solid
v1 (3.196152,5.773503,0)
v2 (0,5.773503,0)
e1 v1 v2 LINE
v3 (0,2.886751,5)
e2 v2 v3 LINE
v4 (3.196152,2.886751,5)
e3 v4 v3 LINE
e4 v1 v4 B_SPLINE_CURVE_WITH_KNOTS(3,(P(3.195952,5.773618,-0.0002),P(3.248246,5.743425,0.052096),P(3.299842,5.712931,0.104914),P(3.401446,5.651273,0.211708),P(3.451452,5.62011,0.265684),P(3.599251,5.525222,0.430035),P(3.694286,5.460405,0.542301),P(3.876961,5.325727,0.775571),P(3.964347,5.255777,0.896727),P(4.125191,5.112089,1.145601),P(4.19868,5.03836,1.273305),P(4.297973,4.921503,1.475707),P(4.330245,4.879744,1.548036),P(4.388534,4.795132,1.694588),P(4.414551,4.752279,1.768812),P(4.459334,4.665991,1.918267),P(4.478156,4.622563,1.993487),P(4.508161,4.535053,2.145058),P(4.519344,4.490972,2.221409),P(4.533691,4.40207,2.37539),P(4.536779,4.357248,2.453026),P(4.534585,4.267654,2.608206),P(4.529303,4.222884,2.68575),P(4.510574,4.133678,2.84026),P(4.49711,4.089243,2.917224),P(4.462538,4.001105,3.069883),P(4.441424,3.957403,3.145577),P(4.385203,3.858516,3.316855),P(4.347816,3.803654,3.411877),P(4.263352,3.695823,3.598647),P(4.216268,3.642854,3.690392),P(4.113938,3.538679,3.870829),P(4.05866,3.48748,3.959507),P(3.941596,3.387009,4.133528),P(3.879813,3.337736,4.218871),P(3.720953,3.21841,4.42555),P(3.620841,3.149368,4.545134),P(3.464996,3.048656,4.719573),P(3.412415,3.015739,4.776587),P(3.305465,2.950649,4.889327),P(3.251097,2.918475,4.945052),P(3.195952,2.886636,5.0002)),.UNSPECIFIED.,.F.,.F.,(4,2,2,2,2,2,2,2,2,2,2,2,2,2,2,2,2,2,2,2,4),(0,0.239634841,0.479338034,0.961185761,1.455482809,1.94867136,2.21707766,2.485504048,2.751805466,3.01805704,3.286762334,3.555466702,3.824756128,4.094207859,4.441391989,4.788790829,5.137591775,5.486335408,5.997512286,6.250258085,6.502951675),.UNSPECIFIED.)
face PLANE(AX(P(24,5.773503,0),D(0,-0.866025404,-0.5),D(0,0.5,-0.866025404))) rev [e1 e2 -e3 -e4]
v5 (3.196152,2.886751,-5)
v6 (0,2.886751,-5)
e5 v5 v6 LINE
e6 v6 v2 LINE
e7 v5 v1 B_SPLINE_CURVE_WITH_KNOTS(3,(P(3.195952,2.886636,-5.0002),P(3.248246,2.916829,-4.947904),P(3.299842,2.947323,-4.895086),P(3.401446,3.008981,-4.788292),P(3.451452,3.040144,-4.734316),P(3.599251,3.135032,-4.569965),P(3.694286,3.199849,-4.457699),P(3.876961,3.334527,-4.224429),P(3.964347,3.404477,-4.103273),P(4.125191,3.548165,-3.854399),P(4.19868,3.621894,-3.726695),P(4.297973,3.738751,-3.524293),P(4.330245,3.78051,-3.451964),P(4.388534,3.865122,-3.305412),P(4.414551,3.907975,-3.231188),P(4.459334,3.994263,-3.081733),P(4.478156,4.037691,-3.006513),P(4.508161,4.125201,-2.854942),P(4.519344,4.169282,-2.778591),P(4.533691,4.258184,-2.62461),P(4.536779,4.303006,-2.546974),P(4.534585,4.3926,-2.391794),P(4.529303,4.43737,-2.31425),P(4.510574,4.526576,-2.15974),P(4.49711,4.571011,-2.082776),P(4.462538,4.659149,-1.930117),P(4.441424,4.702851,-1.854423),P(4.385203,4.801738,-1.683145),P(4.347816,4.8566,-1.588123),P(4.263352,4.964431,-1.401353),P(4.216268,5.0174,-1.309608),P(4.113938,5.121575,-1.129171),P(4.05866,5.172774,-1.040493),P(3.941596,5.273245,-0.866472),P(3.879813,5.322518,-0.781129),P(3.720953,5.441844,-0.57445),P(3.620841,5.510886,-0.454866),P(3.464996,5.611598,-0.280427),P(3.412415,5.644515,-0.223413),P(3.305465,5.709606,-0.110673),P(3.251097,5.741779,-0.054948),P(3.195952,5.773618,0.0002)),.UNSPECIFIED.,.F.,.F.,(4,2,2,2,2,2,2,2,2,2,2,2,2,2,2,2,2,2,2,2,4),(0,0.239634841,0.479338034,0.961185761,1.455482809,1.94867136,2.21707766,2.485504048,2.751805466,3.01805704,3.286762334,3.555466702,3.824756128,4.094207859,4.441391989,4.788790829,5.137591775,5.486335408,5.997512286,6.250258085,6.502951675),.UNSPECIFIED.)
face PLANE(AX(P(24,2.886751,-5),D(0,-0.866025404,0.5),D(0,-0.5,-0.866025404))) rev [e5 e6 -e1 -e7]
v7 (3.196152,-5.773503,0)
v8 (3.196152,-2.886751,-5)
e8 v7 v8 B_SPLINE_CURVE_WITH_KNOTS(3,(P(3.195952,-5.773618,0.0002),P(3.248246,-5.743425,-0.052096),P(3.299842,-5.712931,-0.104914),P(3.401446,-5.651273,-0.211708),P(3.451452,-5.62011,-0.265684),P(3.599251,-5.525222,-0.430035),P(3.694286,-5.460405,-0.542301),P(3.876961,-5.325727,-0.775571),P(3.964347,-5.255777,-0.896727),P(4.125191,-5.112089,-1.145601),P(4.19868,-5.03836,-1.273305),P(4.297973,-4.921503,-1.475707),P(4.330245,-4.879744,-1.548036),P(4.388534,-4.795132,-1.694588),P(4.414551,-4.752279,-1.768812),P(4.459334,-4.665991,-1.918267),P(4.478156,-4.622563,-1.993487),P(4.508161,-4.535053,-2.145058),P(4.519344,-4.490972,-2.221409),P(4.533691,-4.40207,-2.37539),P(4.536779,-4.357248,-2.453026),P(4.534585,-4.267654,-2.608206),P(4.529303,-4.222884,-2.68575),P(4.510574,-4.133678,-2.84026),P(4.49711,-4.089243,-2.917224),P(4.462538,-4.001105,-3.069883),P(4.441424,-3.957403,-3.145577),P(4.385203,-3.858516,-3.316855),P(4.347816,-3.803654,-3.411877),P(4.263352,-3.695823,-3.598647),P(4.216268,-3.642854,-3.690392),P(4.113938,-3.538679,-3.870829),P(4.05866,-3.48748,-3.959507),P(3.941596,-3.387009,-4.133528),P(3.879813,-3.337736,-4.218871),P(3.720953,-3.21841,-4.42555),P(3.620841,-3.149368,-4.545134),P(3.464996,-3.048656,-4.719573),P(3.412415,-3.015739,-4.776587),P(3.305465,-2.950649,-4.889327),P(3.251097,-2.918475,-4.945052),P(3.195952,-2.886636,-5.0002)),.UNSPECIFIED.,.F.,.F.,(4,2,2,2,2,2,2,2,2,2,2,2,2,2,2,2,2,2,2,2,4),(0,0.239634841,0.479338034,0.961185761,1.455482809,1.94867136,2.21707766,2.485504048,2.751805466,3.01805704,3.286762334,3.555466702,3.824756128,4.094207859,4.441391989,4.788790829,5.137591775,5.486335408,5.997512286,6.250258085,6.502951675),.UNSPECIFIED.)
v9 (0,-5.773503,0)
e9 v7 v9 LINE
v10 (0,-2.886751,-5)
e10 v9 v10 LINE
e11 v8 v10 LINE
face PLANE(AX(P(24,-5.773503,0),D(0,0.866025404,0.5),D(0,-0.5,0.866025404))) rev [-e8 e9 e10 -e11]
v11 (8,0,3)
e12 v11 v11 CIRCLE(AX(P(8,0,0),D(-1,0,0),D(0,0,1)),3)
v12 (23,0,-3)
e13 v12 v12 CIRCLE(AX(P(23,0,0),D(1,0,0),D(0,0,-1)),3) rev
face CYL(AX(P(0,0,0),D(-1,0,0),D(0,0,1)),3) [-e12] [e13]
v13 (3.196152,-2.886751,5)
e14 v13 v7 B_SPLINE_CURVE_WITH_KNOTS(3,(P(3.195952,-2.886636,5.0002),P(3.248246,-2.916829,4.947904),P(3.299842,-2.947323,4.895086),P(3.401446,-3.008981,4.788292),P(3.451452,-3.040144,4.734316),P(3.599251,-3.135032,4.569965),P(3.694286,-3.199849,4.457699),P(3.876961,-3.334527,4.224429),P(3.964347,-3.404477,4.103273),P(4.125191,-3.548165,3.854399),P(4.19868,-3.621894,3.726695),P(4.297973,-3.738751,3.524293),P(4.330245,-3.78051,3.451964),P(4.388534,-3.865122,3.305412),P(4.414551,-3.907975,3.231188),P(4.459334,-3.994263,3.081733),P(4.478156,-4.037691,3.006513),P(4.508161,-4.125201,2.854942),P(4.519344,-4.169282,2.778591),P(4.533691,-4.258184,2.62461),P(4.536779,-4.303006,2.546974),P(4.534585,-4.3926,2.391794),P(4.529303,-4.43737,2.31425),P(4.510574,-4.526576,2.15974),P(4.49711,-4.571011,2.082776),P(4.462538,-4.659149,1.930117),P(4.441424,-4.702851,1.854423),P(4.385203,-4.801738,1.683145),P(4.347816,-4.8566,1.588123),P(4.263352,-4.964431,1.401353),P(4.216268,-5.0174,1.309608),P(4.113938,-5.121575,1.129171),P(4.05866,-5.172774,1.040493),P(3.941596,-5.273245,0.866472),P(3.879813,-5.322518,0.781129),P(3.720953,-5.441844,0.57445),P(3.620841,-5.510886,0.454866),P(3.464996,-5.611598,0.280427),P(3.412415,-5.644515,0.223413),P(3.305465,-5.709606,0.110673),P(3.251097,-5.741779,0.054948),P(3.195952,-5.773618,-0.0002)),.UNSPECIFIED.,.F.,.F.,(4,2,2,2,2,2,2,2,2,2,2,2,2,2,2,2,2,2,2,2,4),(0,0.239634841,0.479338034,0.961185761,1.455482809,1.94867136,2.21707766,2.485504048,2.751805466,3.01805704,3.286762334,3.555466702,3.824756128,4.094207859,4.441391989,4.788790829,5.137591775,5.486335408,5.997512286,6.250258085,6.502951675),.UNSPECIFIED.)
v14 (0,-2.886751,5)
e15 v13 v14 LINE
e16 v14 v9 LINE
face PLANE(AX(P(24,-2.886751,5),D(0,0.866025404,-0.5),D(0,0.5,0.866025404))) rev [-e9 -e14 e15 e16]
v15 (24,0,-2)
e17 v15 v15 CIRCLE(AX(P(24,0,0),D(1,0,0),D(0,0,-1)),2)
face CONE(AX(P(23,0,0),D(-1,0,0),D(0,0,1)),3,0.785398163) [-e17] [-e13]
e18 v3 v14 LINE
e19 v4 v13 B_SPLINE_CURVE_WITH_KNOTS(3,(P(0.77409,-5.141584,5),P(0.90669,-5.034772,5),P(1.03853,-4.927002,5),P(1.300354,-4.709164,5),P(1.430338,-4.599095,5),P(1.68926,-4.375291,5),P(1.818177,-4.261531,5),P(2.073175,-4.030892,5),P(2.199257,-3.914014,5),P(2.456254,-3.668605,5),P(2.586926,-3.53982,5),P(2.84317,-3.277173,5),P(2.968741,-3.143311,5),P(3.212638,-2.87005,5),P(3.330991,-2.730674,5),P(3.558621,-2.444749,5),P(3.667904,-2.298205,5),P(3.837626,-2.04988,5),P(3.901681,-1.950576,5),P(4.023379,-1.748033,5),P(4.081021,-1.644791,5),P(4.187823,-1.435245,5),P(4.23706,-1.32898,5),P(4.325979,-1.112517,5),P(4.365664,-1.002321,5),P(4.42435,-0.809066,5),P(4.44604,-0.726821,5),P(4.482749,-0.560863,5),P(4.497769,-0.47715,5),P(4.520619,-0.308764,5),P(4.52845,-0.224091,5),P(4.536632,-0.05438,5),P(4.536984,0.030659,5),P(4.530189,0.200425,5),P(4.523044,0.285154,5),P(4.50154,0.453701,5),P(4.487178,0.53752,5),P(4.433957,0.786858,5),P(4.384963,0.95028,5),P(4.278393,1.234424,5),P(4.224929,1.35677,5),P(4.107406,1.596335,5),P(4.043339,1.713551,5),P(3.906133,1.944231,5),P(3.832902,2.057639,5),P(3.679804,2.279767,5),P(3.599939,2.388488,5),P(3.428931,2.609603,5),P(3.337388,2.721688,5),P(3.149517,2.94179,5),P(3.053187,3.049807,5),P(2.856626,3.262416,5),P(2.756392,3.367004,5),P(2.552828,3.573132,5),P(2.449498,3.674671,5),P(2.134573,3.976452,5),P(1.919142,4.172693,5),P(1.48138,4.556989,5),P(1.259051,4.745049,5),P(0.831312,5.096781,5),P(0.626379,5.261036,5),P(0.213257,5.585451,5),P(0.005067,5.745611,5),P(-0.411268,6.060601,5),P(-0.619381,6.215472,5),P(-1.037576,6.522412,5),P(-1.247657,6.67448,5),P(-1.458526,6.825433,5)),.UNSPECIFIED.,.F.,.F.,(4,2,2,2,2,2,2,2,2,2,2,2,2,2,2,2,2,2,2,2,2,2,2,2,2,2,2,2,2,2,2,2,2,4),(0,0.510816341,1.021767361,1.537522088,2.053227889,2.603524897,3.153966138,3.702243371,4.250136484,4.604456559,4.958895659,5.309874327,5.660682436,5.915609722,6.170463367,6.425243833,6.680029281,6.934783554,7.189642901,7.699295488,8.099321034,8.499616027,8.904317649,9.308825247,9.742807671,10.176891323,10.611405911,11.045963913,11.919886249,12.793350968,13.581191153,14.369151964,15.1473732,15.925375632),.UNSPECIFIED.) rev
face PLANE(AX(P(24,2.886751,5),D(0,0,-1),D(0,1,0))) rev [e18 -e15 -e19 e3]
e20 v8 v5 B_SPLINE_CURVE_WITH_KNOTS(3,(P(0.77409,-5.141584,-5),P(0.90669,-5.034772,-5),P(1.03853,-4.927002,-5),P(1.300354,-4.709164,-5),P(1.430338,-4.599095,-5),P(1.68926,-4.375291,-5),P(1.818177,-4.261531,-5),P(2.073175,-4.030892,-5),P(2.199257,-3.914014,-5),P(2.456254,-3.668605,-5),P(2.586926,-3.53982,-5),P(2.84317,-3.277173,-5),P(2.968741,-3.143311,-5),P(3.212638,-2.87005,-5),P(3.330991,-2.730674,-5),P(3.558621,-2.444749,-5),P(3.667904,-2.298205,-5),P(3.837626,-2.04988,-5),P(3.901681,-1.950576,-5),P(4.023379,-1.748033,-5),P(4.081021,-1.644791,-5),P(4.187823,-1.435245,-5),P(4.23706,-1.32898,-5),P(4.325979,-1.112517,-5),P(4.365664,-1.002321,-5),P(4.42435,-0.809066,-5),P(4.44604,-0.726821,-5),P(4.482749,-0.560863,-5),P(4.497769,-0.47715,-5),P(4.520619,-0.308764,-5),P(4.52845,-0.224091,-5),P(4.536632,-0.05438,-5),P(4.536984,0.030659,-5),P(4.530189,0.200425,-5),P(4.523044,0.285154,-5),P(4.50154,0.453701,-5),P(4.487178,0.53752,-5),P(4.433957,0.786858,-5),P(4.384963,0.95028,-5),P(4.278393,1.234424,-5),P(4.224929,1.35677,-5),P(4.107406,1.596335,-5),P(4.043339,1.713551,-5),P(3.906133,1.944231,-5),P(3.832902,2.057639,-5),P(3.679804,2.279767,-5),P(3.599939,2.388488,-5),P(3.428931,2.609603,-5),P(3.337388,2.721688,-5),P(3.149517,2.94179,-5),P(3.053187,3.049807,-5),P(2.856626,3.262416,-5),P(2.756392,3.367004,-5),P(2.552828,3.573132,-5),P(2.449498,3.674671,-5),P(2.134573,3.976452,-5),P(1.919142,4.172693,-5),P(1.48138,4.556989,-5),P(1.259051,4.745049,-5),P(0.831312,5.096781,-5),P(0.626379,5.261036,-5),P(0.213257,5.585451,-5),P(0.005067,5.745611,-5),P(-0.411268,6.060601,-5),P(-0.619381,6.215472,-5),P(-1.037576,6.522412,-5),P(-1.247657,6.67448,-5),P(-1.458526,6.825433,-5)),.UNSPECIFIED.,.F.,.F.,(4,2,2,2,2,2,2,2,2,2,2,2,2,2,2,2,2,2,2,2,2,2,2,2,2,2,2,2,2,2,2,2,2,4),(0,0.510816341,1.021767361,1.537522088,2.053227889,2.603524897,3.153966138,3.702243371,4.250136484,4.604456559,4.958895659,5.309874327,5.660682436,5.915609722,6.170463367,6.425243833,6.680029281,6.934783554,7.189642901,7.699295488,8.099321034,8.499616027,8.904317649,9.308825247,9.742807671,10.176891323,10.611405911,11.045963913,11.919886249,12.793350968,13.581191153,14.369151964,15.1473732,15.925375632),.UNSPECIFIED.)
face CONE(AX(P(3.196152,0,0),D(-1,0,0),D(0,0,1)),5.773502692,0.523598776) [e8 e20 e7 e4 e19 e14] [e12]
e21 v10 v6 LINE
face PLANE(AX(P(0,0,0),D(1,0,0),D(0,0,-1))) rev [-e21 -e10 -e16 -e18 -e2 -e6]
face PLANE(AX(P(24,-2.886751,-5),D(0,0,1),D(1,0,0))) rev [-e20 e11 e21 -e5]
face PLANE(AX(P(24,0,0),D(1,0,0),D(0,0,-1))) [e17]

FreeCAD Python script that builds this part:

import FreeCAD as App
import Part
import Sketcher

V = App.Vector
Q = App.Units.Quantity


def edges_at(feature, points):
    """Names of the edges that pass closest to the given points."""
    edges = feature.Shape.Edges
    near = lambda p: min(range(len(edges)), key=lambda i: edges[i].distToShape(Part.Vertex(*p))[0])
    return sorted({f"Edge{near(p) + 1}" for p in points})

doc = App.newDocument("Part")
body = doc.addObject("PartDesign::Body", "Body")

# Sketch on YZ plane
sketch1 = body.newObject("Sketcher::SketchObject", "Sketch")
sketch1.AttachmentSupport = (doc.getObject("YZ_Plane"), [""])
sketch1.MapMode = "FlatFace"
sketch1.addGeometry([
    Part.LineSegment(V(5.773503, 0, 0), V(2.886751, 5, 0)),  # 0
    Part.LineSegment(V(2.886751, 5, 0), V(-2.886751, 5, 0)),  # 1
    Part.LineSegment(V(-2.886751, 5, 0), V(-5.773503, 0, 0)),  # 2
    Part.LineSegment(V(-5.773503, 0, 0), V(-2.886751, -5, 0)),  # 3
    Part.LineSegment(V(-2.886751, -5, 0), V(2.886751, -5, 0)),  # 4
    Part.LineSegment(V(2.886751, -5, 0), V(5.773503, 0, 0)),  # 5
], False)
sketch1.addConstraint([
    Sketcher.Constraint("Coincident", 0, 2, 1, 1),
    Sketcher.Constraint("Coincident", 1, 2, 2, 1),
    Sketcher.Constraint("Coincident", 2, 2, 3, 1),
    Sketcher.Constraint("Coincident", 3, 2, 4, 1),
    Sketcher.Constraint("Coincident", 4, 2, 5, 1),
    Sketcher.Constraint("Coincident", 5, 2, 0, 1),
    Sketcher.Constraint("Horizontal", 1),
    Sketcher.Constraint("Horizontal", 4),
    Sketcher.Constraint("Symmetric", 0, 2, 3, 2, -1, 1),
    Sketcher.Constraint("Symmetric", 2, 2, 5, 2, -1, 1),
    Sketcher.Constraint("PointOnObject", 2, 2, -1),
    Sketcher.Constraint("Parallel", 2, 5),
    Sketcher.Constraint("Vertical", 1, 2, 3, 2),
    Sketcher.Constraint("Angle", 0, Q("120 deg")),
    Sketcher.Constraint("DistanceY", -1, 1, 0, 2, 5.0),
    Sketcher.Constraint("DistanceX", 1, 2, 1, 1, 5.773503),
])
pad1 = body.newObject("PartDesign::Pad", "Pad")
pad1.Profile = sketch1
pad1.Length = 24

# Sketch on XY plane
sketch2 = body.newObject("Sketcher::SketchObject", "Sketch001")
sketch2.AttachmentSupport = (doc.getObject("XY_Plane"), [""])
sketch2.MapMode = "FlatFace"
sketch2.addGeometry([
    Part.LineSegment(V(3.196152, 5.773503, 0), V(8, 3, 0)),
    Part.LineSegment(V(8, 3, 0), V(24, 3, 0)),
    Part.LineSegment(V(24, 3, 0), V(24, 5.773503, 0)),
    Part.LineSegment(V(24, 5.773503, 0), V(3.196152, 5.773503, 0)),
], False)
sketch2.addConstraint([
    Sketcher.Constraint("Coincident", 0, 2, 1, 1),
    Sketcher.Constraint("Coincident", 1, 2, 2, 1),
    Sketcher.Constraint("Coincident", 2, 2, 3, 1),
    Sketcher.Constraint("Coincident", 3, 2, 0, 1),
    Sketcher.Constraint("Horizontal", 1),
    Sketcher.Constraint("Vertical", 2),
    Sketcher.Constraint("Horizontal", 3),
    Sketcher.Constraint("DistanceX", 1, 1, 1, 2, 16.0),
    Sketcher.Constraint("Angle", 0, Q("-30 deg")),
    Sketcher.Constraint("DistanceX", -1, 1, 0, 2, 8.0),
    Sketcher.Constraint("DistanceY", -1, 1, 0, 2, 3.0),
    Sketcher.Constraint("DistanceX", 3, 2, 3, 1, 20.803848),
])
groove = body.newObject("PartDesign::Groove", "Groove")
groove.Profile = sketch2
groove.ReferenceAxis = (sketch2, ["H_Axis"])
groove.Angle = 360
doc.recompute()

chamfer = body.newObject("PartDesign::Chamfer", "Chamfer")
chamfer.Base = (groove, edges_at(groove, [(24, 0, -3)]))
chamfer.Size = 1

doc.recompute()
